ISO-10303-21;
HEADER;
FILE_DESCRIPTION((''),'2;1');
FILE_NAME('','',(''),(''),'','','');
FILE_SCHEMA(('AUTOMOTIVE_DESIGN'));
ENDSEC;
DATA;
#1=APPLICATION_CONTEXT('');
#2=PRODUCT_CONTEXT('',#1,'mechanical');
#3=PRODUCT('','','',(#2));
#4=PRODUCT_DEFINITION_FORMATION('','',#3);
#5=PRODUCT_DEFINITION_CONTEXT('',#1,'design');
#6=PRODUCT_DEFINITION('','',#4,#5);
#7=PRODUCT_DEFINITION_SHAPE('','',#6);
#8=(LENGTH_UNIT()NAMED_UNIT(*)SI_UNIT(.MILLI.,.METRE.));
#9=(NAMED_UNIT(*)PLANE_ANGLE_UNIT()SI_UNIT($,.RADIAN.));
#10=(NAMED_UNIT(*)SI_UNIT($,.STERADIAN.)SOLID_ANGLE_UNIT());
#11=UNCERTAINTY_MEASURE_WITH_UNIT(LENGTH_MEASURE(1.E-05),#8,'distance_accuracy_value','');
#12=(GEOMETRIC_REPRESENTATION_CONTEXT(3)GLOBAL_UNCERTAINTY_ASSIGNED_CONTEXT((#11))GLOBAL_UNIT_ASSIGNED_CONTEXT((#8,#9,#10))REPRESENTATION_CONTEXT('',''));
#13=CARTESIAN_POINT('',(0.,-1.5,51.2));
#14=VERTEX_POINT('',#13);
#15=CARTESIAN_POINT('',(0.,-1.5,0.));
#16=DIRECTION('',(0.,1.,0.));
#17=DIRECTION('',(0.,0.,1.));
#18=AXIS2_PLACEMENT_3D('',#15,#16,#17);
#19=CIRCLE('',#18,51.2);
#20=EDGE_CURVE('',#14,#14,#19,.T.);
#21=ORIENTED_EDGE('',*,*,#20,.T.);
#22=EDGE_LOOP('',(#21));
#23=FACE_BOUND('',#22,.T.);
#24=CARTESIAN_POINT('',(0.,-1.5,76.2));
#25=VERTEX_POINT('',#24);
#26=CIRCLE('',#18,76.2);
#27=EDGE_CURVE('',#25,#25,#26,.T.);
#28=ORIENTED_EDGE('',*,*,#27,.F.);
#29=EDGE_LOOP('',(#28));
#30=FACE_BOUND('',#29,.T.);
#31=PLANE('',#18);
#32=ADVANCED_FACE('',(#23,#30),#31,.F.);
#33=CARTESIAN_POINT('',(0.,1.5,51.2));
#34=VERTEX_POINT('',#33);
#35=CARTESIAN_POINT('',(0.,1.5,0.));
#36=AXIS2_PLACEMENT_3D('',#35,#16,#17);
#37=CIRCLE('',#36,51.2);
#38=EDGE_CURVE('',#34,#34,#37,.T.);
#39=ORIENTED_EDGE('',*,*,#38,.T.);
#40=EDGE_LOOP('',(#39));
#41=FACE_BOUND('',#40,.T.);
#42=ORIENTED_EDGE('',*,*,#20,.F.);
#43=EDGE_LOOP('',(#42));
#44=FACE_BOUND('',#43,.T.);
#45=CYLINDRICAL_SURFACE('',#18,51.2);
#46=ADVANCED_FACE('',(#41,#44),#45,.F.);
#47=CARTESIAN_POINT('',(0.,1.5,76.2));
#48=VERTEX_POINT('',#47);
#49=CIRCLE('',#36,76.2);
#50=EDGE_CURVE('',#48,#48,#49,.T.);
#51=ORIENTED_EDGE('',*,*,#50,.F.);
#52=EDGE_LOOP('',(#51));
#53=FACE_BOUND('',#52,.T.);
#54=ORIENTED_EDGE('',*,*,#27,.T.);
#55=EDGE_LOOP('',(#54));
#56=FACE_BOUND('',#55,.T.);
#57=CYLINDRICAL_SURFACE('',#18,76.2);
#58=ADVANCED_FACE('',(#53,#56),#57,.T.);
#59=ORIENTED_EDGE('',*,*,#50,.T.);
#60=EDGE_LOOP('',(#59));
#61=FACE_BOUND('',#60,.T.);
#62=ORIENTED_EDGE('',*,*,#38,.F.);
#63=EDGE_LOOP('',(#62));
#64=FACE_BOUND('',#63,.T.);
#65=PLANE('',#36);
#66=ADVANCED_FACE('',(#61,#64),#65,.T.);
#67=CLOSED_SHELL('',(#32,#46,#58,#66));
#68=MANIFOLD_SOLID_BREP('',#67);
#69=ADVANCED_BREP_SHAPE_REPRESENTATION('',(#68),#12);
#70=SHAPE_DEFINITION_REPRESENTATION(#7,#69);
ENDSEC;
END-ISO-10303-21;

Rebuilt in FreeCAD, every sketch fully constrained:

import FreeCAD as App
import Part
import Sketcher

doc = App.newDocument("Part")
body = doc.addObject("PartDesign::Body", "Body")

sketch1 = body.newObject("Sketcher::SketchObject", "Sketch")
sketch1.AttachmentSupport = (doc.getObject("XZ_Plane"), [""])
sketch1.MapMode = "FlatFace"
sketch1.addGeometry(Part.Circle(App.Vector(0, 0, 0), App.Vector(0, 0, 1), 76), False)
sketch1.addGeometry(Part.Circle(App.Vector(0, 0, 0), App.Vector(0, 0, 1), 51), False)
sketch1.addConstraint(Sketcher.Constraint("Coincident", 0, 3, -1, 1))
sketch1.addConstraint(Sketcher.Constraint("Coincident", 1, 3, -1, 1))
sketch1.addConstraint(Sketcher.Constraint("Diameter", 0, 152.4))
sketch1.addConstraint(Sketcher.Constraint("Diameter", 1, 102.4))
pad1 = body.newObject("PartDesign::Pad", "Pad")
pad1.Profile = sketch1
pad1.Type = "TwoLengths"
pad1.Length = 1.5
pad1.Length2 = 1.5
pad1.Reversed = True

doc.recompute()
